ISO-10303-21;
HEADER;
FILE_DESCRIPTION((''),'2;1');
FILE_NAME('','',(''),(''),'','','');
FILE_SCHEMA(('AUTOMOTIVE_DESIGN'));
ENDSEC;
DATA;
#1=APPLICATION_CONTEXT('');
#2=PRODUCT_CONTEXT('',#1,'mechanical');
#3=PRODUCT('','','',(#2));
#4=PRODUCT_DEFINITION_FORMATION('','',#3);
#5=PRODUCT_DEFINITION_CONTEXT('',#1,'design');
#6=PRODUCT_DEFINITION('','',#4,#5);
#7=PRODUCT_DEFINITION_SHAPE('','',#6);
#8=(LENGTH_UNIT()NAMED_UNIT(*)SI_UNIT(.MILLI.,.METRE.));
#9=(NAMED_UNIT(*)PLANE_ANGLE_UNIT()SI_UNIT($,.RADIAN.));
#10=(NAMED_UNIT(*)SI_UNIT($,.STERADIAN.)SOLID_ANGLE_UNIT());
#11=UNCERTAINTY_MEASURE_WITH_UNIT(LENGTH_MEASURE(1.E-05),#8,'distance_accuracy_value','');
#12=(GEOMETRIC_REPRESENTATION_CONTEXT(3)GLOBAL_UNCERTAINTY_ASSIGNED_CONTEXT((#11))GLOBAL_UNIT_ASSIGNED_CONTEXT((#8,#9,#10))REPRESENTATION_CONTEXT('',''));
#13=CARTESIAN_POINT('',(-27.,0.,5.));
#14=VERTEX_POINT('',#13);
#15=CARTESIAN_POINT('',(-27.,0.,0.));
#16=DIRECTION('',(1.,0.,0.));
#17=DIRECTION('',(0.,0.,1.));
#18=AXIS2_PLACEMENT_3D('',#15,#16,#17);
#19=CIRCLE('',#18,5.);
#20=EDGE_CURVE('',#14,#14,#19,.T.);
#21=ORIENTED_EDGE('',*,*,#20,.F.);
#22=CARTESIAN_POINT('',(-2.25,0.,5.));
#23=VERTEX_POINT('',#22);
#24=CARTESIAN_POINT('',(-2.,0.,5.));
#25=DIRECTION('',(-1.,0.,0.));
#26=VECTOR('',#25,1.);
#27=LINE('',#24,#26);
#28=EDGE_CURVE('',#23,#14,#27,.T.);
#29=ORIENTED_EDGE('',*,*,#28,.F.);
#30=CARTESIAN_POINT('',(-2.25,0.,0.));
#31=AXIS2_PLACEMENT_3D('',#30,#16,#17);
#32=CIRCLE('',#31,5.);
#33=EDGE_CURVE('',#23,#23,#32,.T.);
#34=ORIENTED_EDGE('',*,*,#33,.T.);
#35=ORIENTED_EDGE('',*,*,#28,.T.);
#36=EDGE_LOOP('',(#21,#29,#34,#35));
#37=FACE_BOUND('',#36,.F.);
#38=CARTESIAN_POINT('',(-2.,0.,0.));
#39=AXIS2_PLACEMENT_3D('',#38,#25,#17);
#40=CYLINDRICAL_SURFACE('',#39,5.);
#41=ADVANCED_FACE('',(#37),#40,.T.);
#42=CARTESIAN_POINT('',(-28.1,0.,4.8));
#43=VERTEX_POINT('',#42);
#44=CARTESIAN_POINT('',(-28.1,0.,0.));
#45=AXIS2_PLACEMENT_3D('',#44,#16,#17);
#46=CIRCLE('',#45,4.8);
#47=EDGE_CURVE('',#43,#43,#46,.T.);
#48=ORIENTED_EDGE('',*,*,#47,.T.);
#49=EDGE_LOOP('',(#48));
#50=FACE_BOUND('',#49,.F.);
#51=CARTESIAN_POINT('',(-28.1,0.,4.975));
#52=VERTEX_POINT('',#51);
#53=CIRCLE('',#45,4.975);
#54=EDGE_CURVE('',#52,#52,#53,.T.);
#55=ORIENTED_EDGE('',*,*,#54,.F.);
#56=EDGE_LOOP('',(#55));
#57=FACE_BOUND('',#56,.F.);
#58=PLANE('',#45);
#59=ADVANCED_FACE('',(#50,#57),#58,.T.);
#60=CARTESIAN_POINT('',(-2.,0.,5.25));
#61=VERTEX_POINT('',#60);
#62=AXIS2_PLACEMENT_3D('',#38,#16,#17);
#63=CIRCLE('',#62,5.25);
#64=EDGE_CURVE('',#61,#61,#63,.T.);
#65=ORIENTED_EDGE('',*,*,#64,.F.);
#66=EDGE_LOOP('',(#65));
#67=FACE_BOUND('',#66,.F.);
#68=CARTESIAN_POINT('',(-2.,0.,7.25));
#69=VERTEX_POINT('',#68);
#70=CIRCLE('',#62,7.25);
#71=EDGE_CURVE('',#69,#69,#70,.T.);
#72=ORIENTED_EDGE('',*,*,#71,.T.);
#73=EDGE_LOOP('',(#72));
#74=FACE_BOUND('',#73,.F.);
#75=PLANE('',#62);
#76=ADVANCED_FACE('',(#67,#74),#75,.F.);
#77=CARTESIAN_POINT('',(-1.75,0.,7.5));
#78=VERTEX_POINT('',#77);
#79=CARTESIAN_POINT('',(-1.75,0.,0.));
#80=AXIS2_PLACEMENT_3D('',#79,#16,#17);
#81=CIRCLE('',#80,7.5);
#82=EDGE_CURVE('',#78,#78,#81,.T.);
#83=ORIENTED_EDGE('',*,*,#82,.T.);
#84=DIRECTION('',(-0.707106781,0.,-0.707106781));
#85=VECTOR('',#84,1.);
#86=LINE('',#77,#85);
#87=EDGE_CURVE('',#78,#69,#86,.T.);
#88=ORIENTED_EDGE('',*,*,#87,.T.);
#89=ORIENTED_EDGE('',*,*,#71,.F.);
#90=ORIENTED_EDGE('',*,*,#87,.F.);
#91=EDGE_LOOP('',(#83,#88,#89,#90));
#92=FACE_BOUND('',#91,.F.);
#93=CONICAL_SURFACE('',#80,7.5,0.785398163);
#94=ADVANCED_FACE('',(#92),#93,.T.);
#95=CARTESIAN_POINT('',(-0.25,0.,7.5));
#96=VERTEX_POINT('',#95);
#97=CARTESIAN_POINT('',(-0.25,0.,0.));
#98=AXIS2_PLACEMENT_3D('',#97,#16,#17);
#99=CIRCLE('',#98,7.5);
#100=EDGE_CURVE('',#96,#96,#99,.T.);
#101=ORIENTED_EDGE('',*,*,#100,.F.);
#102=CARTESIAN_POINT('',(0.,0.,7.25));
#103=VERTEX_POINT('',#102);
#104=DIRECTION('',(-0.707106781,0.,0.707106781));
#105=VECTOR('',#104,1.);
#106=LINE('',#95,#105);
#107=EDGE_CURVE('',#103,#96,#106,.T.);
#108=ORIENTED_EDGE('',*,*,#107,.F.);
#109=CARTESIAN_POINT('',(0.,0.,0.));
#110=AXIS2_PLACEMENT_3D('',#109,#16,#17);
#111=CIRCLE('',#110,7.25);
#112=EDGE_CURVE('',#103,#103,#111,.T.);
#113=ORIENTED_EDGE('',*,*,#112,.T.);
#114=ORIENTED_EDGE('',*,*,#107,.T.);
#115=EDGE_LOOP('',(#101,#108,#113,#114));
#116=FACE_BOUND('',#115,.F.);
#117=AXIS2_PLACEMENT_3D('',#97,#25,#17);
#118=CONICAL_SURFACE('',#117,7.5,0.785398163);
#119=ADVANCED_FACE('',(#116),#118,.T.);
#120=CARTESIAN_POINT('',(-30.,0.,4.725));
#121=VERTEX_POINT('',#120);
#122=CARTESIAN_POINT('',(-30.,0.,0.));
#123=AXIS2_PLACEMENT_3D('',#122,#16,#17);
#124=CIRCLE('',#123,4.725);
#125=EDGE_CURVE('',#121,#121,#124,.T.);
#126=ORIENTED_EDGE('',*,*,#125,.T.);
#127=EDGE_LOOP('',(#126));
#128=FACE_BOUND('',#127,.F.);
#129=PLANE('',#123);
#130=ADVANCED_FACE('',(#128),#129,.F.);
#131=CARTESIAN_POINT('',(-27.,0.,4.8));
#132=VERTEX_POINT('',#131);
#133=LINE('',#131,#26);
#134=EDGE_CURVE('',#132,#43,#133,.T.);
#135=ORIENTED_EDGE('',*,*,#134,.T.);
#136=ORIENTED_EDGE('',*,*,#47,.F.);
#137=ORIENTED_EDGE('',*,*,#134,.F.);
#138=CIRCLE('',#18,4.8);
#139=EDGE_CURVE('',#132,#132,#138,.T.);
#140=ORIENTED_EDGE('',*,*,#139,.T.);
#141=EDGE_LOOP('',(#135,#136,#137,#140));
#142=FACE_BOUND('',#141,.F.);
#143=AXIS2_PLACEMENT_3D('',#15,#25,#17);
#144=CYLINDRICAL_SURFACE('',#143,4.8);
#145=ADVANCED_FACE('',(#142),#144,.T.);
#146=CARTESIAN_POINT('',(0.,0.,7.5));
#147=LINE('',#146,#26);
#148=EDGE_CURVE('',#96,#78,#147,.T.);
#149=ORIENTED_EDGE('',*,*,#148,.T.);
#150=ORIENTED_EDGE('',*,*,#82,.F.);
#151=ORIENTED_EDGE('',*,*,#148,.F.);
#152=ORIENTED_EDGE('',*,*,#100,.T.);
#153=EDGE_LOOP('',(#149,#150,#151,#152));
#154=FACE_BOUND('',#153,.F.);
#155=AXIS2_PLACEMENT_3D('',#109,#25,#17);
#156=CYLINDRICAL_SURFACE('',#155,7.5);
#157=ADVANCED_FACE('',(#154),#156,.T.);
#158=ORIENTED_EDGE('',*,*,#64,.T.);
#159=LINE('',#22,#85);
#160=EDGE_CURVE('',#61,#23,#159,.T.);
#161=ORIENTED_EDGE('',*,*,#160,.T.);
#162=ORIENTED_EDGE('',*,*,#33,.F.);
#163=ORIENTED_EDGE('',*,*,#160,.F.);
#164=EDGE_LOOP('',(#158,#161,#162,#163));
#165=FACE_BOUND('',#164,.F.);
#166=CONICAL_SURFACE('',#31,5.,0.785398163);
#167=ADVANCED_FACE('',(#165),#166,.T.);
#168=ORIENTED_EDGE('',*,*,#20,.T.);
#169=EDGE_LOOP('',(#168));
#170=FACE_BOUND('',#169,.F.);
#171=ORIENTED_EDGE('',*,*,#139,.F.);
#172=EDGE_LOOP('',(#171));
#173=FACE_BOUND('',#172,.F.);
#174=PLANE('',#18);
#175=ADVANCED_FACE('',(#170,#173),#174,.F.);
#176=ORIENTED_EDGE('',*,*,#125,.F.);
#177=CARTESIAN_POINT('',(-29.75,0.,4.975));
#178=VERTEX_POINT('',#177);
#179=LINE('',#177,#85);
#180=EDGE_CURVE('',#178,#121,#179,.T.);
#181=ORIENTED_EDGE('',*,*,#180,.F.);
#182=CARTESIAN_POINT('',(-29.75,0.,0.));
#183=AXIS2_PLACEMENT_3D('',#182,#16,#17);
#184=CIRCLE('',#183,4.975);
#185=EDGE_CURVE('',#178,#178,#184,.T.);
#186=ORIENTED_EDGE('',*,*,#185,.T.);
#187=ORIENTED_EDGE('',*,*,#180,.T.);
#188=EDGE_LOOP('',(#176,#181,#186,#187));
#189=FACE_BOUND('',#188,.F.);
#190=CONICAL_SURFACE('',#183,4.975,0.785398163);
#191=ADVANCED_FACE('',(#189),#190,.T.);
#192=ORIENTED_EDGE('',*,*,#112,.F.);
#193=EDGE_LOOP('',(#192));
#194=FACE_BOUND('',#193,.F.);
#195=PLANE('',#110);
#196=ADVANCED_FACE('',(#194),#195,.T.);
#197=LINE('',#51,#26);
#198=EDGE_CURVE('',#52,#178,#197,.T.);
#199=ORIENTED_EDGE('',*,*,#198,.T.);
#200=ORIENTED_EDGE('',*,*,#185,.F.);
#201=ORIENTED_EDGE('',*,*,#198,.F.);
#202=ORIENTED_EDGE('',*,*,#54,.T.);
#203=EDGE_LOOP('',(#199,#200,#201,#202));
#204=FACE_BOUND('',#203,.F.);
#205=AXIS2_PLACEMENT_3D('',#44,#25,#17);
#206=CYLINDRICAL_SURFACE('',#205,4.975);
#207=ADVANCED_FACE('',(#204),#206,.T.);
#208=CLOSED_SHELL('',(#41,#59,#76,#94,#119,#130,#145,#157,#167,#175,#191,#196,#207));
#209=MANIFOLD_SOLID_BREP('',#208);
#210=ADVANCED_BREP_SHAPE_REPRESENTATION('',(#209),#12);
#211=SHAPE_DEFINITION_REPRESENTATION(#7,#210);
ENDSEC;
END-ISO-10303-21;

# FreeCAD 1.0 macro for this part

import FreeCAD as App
import Part
import Sketcher

V = App.Vector


def edges_at(feature, points):
    """Names of the edges that pass closest to the given points."""
    edges = feature.Shape.Edges
    near = lambda p: min(range(len(edges)), key=lambda i: edges[i].distToShape(Part.Vertex(*p))[0])
    return sorted({f"Edge{near(p) + 1}" for p in points})

doc = App.newDocument("Part")
params = doc.addObject("Spreadsheet::Sheet", "Params")
for row, (alias, value) in enumerate([
    ("sketch1_width", "30 mm"),
    ("sketch1_width2", "2 mm"),
    ("sketch1_width3", "25 mm"),
    ("sketch1_width4", "1.1 mm"),
    ("sketch1_height", "7.5 mm"),
    ("revolution_angle", "360 deg"),
    ("chamfer_size", "0.25 mm"),
], start=1):
    params.set(f"A{row}", alias)
    params.set(f"B{row}", "=" + value)
    params.setAlias(f"B{row}", alias)

body = doc.addObject("PartDesign::Body", "Body")

# Sketch on XZ plane
sketch1 = body.newObject("Sketcher::SketchObject", "Sketch")
sketch1.AttachmentSupport = (doc.getObject("XZ_Plane"), [""])
sketch1.MapMode = "FlatFace"
sketch1.addGeometry([
    Part.LineSegment(V(-30, 0, 0), V(0, 0, 0)),  # 0
    Part.LineSegment(V(0, 0, 0), V(0, 7.5, 0)),  # 1
    Part.LineSegment(V(0, 7.5, 0), V(-2, 7.5, 0)),  # 2
    Part.LineSegment(V(-2, 7.5, 0), V(-2, 5, 0)),  # 3
    Part.LineSegment(V(-2, 5, 0), V(-27, 5, 0)),  # 4
    Part.LineSegment(V(-27, 5, 0), V(-27, 4.8, 0)),  # 5
    Part.LineSegment(V(-27, 4.8, 0), V(-28.1, 4.8, 0)),  # 6
    Part.LineSegment(V(-28.1, 4.8, 0), V(-28.1, 4.97, 0)),  # 7
    Part.LineSegment(V(-28.1, 4.97, 0), V(-30, 4.97, 0)),  # 8
    Part.LineSegment(V(-30, 4.97, 0), V(-30, 0, 0)),  # 9
], False)
sketch1.addConstraint([
    Sketcher.Constraint("Coincident", 0, 2, 1, 1),
    Sketcher.Constraint("Coincident", 1, 2, 2, 1),
    Sketcher.Constraint("Coincident", 2, 2, 3, 1),
    Sketcher.Constraint("Coincident", 3, 2, 4, 1),
    Sketcher.Constraint("Coincident", 4, 2, 5, 1),
    Sketcher.Constraint("Coincident", 5, 2, 6, 1),
    Sketcher.Constraint("Coincident", 6, 2, 7, 1),
    Sketcher.Constraint("Coincident", 7, 2, 8, 1),
    Sketcher.Constraint("Coincident", 8, 2, 9, 1),
    Sketcher.Constraint("Coincident", 9, 2, 0, 1),
    Sketcher.Constraint("Horizontal", 0),
    Sketcher.Constraint("Vertical", 1),
    Sketcher.Constraint("Horizontal", 2),
    Sketcher.Constraint("Vertical", 3),
    Sketcher.Constraint("Horizontal", 4),
    Sketcher.Constraint("Vertical", 5),
    Sketcher.Constraint("Horizontal", 6),
    Sketcher.Constraint("Vertical", 7),
    Sketcher.Constraint("Horizontal", 8),
    Sketcher.Constraint("Vertical", 9),
    Sketcher.Constraint("Coincident", 0, 2, -1, 1),
    Sketcher.Constraint("DistanceX", 0, 1, 0, 2, 30.0),
    Sketcher.Constraint("DistanceX", 2, 2, 2, 1, 2.0),
    Sketcher.Constraint("DistanceX", 4, 2, 4, 1, 25.0),
    Sketcher.Constraint("DistanceX", 6, 2, 6, 1, 1.1),
    Sketcher.Constraint("DistanceY", 1, 1, 1, 2, 7.5),
    Sketcher.Constraint("DistanceY", 3, 2, 3, 1, 2.5),
    Sketcher.Constraint("DistanceY", 5, 2, 5, 1, 0.2),
    Sketcher.Constraint("DistanceY", 7, 1, 7, 2, 0.175),
])
sketch1.setExpression("Constraints[21]", "Params.sketch1_width")
sketch1.setExpression("Constraints[22]", "Params.sketch1_width2")
sketch1.setExpression("Constraints[23]", "Params.sketch1_width3")
sketch1.setExpression("Constraints[24]", "Params.sketch1_width4")
sketch1.setExpression("Constraints[25]", "Params.sketch1_height")
revolution = body.newObject("PartDesign::Revolution", "Revolution")
revolution.Profile = sketch1
revolution.ReferenceAxis = (sketch1, ["H_Axis"])
revolution.setExpression("Angle", "Params.revolution_angle")
doc.recompute()

chamfer = body.newObject("PartDesign::Chamfer", "Chamfer")
chamfer.Base = (revolution, edges_at(revolution, [
    (-2, 0, -7.5),
    (-2, 0, -5),
    (0, 0, -7.5),
    (-30, 0, -4.975),
]))
chamfer.setExpression("Size", "Params.chamfer_size")

doc.recompute()
